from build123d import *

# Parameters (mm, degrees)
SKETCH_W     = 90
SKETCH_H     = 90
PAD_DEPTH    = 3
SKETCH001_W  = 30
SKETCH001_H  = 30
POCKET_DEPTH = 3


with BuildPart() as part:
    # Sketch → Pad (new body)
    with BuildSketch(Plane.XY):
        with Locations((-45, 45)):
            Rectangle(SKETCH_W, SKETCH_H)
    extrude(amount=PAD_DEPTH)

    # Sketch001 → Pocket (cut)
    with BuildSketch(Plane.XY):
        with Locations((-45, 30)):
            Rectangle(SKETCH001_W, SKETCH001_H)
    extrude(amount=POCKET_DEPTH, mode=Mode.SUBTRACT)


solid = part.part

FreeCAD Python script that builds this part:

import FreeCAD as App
import Part
import Sketcher


def add_polygon(sketch, points):
    """Adds a closed chain of lines whose ends are joined by coincident constraints."""
    first, n = sketch.GeometryCount, len(points)
    for a, b in zip(points, points[1:] + points[:1]):
        sketch.addGeometry(Part.LineSegment(App.Vector(*a, 0), App.Vector(*b, 0)), False)
    for i in range(n):
        sketch.addConstraint(Sketcher.Constraint("Coincident", first + i, 2, first + (i + 1) % n, 1))

doc = App.newDocument("Part")
body = doc.addObject("PartDesign::Body", "Body")

# Sketch on XY plane
sketch1 = doc.addObject("Sketcher::SketchObject", "Sketch")
body.addObject(sketch1)
sketch1.AttachmentSupport = (doc.XY_Plane, [""])
sketch1.MapMode = "FlatFace"
add_polygon(sketch1, [(-90, 90), (-90, 0), (0, 0), (0, 90)])  # lines 0-3
sketch1.addConstraint(Sketcher.Constraint("Vertical", 0))
sketch1.addConstraint(Sketcher.Constraint("Horizontal", 1))
sketch1.addConstraint(Sketcher.Constraint("Vertical", 2))
sketch1.addConstraint(Sketcher.Constraint("Horizontal", 3))
sketch1.addConstraint(Sketcher.Constraint("Coincident", 1, 2, -1, 1))
sketch1.addConstraint(Sketcher.Constraint("Equal", 3, 0))
sketch1.addConstraint(Sketcher.Constraint("DistanceX", 1, 1, 1, 2, 90.0))
pad1 = doc.addObject("PartDesign::Pad", "Pad")
body.addObject(pad1)
pad1.Profile = sketch1
pad1.Length = 3

# Sketch on XY plane
sketch2 = doc.addObject("Sketcher::SketchObject", "Sketch001")
body.addObject(sketch2)
sketch2.AttachmentSupport = (doc.XY_Plane, [""])
sketch2.MapMode = "FlatFace"
add_polygon(sketch2, [(-60, 45), (-60, 15), (-30, 15), (-30, 45)])  # lines 0-3
sketch2.addConstraint(Sketcher.Constraint("Vertical", 0))
sketch2.addConstraint(Sketcher.Constraint("Horizontal", 1))
sketch2.addConstraint(Sketcher.Constraint("Vertical", 2))
sketch2.addConstraint(Sketcher.Constraint("Horizontal", 3))
sketch2.addConstraint(Sketcher.Constraint("Equal", 3, 0))
sketch2.addConstraint(Sketcher.Constraint("DistanceX", 1, 1, 1, 2, 30.0))
sketch2.addConstraint(Sketcher.Constraint("DistanceX", 0, 2, -1, 1, 60.0))
sketch2.addConstraint(Sketcher.Constraint("DistanceY", -1, 1, 0, 2, 15.0))
pocket1 = doc.addObject("PartDesign::Pocket", "Pocket")
body.addObject(pocket1)
pocket1.Profile = sketch2
pocket1.Length = 3
pocket1.Reversed = True

doc.recompute()
